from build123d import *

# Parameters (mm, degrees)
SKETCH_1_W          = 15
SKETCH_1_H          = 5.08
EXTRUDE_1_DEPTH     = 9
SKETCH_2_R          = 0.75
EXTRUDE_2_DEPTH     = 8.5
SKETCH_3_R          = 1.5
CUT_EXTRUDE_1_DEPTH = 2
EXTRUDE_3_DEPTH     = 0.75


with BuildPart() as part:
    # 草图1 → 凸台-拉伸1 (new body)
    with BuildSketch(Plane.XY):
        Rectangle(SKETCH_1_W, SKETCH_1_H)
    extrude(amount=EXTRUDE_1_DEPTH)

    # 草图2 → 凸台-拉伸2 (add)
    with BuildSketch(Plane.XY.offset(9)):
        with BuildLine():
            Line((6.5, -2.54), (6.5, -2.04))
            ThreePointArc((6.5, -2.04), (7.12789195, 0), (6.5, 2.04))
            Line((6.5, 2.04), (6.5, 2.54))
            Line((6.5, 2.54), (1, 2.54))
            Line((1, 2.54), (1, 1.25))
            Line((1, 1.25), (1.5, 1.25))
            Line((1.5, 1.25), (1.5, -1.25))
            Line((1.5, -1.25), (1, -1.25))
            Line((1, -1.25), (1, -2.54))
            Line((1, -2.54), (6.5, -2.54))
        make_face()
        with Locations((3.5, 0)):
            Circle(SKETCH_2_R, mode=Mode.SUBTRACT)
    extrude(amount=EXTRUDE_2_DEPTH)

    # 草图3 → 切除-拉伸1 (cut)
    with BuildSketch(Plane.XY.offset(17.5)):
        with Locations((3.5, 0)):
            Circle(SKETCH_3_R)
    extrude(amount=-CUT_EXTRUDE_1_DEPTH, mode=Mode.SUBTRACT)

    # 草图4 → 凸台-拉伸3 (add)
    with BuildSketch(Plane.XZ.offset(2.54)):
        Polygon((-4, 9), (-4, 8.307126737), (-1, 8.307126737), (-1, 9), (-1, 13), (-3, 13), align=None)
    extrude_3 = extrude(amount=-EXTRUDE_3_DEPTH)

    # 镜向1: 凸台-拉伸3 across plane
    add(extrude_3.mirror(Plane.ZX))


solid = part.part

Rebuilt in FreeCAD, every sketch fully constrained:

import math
import FreeCAD as App
import Part
import Sketcher

V = App.Vector
Q = App.Units.Quantity


def add_polygon(sketch, points):
    """Adds a closed chain of lines whose ends are joined by coincident constraints."""
    first, n = sketch.GeometryCount, len(points)
    for a, b in zip(points, points[1:] + points[:1]):
        sketch.addGeometry(Part.LineSegment(App.Vector(*a, 0), App.Vector(*b, 0)), False)
    for i in range(n):
        sketch.addConstraint(Sketcher.Constraint("Coincident", first + i, 2, first + (i + 1) % n, 1))

doc = App.newDocument("Part")
params = doc.addObject("Spreadsheet::Sheet", "Params")
for row, (alias, value) in enumerate([
    ("sketch1_width", "15 mm"),
    ("sketch1_height", "5.08 mm"),
    ("pad1_length", "9 mm"),
    ("sketch2_diameter", "1.5 mm"),
    ("sketch2_width", "5.5 mm"),
    ("sketch2_width2", "0.5 mm"),
    ("sketch2_height", "2.5 mm"),
    ("sketch2_height2", "1.29 mm"),
    ("pad2_length", "8.5 mm"),
    ("sketch3_diameter", "3 mm"),
    ("pocket1_length", "2 mm"),
    ("sketch4_width", "3 mm"),
    ("sketch4_width2", "2 mm"),
    ("pad3_length", "0.75 mm"),
], start=1):
    params.set(f"A{row}", alias)
    params.set(f"B{row}", "=" + value)
    params.setAlias(f"B{row}", alias)

body = doc.addObject("PartDesign::Body", "Body")

# Sketch on XY plane
sketch1 = body.newObject("Sketcher::SketchObject", "Sketch")
sketch1.AttachmentSupport = (doc.getObject("XY_Plane"), [""])
sketch1.MapMode = "FlatFace"
add_polygon(sketch1, [(-8, 3), (-8, -3), (8, -3), (8, 3)])  # lines 0-3
sketch1.addConstraint(Sketcher.Constraint("Vertical", 0))
sketch1.addConstraint(Sketcher.Constraint("Horizontal", 1))
sketch1.addConstraint(Sketcher.Constraint("Vertical", 2))
sketch1.addConstraint(Sketcher.Constraint("Horizontal", 3))
sketch1.addConstraint(Sketcher.Constraint("Symmetric", 0, 2, 2, 2, -1, 1))
sketch1.addConstraint(Sketcher.Constraint("DistanceX", 1, 1, 1, 2, Q("15 mm")))
sketch1.addConstraint(Sketcher.Constraint("DistanceY", 0, 2, 0, 1, Q("5.08 mm")))
sketch1.setExpression("Constraints[9]", "Params.sketch1_width")
sketch1.setExpression("Constraints[10]", "Params.sketch1_height")
pad1 = body.newObject("PartDesign::Pad", "Pad")
pad1.Profile = sketch1
pad1.setExpression("Length", "Params.pad1_length")

# Sketch on XY plane
sketch2 = body.newObject("Sketcher::SketchObject", "Sketch001")
sketch2.AttachmentSupport = (doc.getObject("XY_Plane"), [""])
sketch2.MapMode = "FlatFace"
sketch2.AttachmentOffset = App.Placement(V(0, 0, 9), App.Rotation())
sketch2.addGeometry(Part.LineSegment(V(6.5, -2.5, 0), V(6.5, -2, 0)), False)
sketch2.addGeometry(Part.ArcOfCircle(Part.Circle(V(3.5, 0, 0), V(0, 0, 1), 3.6), math.radians(-34), math.radians(34)), False)
sketch2.addGeometry(Part.LineSegment(V(6.5, 2, 0), V(6.5, 2.5, 0)), False)
sketch2.addGeometry(Part.LineSegment(V(6.5, 2.5, 0), V(1, 2.5, 0)), False)
sketch2.addGeometry(Part.LineSegment(V(1, 2.5, 0), V(1, 1.2, 0)), False)
sketch2.addGeometry(Part.LineSegment(V(1, 1.2, 0), V(1.5, 1.2, 0)), False)
sketch2.addGeometry(Part.LineSegment(V(1.5, 1.2, 0), V(1.5, -1.2, 0)), False)
sketch2.addGeometry(Part.LineSegment(V(1.5, -1.2, 0), V(1, -1.2, 0)), False)
sketch2.addGeometry(Part.LineSegment(V(1, -1.2, 0), V(1, -2.5, 0)), False)
sketch2.addGeometry(Part.LineSegment(V(1, -2.5, 0), V(6.5, -2.5, 0)), False)
sketch2.addGeometry(Part.Circle(V(3.5, 0, 0), V(0, 0, 1), 0.8), False)
sketch2.addConstraint(Sketcher.Constraint("Coincident", 0, 2, 1, 1))
sketch2.addConstraint(Sketcher.Constraint("Coincident", 1, 2, 2, 1))
sketch2.addConstraint(Sketcher.Constraint("Coincident", 2, 2, 3, 1))
sketch2.addConstraint(Sketcher.Constraint("Coincident", 3, 2, 4, 1))
sketch2.addConstraint(Sketcher.Constraint("Coincident", 4, 2, 5, 1))
sketch2.addConstraint(Sketcher.Constraint("Coincident", 5, 2, 6, 1))
sketch2.addConstraint(Sketcher.Constraint("Coincident", 6, 2, 7, 1))
sketch2.addConstraint(Sketcher.Constraint("Coincident", 7, 2, 8, 1))
sketch2.addConstraint(Sketcher.Constraint("Coincident", 8, 2, 9, 1))
sketch2.addConstraint(Sketcher.Constraint("Coincident", 9, 2, 0, 1))
sketch2.addConstraint(Sketcher.Constraint("Vertical", 0))
sketch2.addConstraint(Sketcher.Constraint("Vertical", 2))
sketch2.addConstraint(Sketcher.Constraint("Horizontal", 3))
sketch2.addConstraint(Sketcher.Constraint("Vertical", 4))
sketch2.addConstraint(Sketcher.Constraint("Horizontal", 5))
sketch2.addConstraint(Sketcher.Constraint("Vertical", 6))
sketch2.addConstraint(Sketcher.Constraint("Horizontal", 7))
sketch2.addConstraint(Sketcher.Constraint("Vertical", 8))
sketch2.addConstraint(Sketcher.Constraint("Horizontal", 9))
sketch2.addConstraint(Sketcher.Constraint("Coincident", 10, 3, 1, 3))
sketch2.addConstraint(Sketcher.Constraint("Symmetric", 0, 2, 1, 2, -1))
sketch2.addConstraint(Sketcher.Constraint("Symmetric", 4, 2, 7, 2, -1))
sketch2.addConstraint(Sketcher.Constraint("Equal", 7, 0))
sketch2.addConstraint(Sketcher.Constraint("Equal", 0, 2))
sketch2.addConstraint(Sketcher.Constraint("Diameter", 10, Q("1.5 mm")))
sketch2.addConstraint(Sketcher.Constraint("DistanceX", 3, 2, 3, 1, Q("5.5 mm")))
sketch2.addConstraint(Sketcher.Constraint("DistanceX", 5, 1, 5, 2, Q("0.5 mm")))
sketch2.addConstraint(Sketcher.Constraint("DistanceY", 6, 2, 6, 1, Q("2.5 mm")))
sketch2.addConstraint(Sketcher.Constraint("DistanceX", -1, 1, 3, 2, Q("1 mm")))
sketch2.addConstraint(Sketcher.Constraint("DistanceX", 1, 3, 0, 2, Q("3 mm")))
sketch2.addConstraint(Sketcher.Constraint("DistanceY", 4, 2, 4, 1, Q("1.29 mm")))
sketch2.setExpression("Constraints[24]", "Params.sketch2_diameter")
sketch2.setExpression("Constraints[25]", "Params.sketch2_width")
sketch2.setExpression("Constraints[26]", "Params.sketch2_width2")
sketch2.setExpression("Constraints[27]", "Params.sketch2_height")
sketch2.setExpression("Constraints[30]", "Params.sketch2_height2")
pad2 = body.newObject("PartDesign::Pad", "Pad001")
pad2.Profile = sketch2
pad2.setExpression("Length", "Params.pad2_length")

# Sketch on XY plane
sketch3 = body.newObject("Sketcher::SketchObject", "Sketch002")
sketch3.AttachmentSupport = (doc.getObject("XY_Plane"), [""])
sketch3.MapMode = "FlatFace"
sketch3.AttachmentOffset = App.Placement(V(0, 0, 17.5), App.Rotation())
sketch3.addGeometry(Part.Circle(V(3.5, 0, 0), V(0, 0, 1), 1.5), False)
sketch3.addConstraint(Sketcher.Constraint("PointOnObject", 0, 3, -1))
sketch3.addConstraint(Sketcher.Constraint("Diameter", 0, Q("3 mm")))
sketch3.addConstraint(Sketcher.Constraint("DistanceX", -1, 1, 0, 3, Q("3.5 mm")))
sketch3.setExpression("Constraints[1]", "Params.sketch3_diameter")
pocket1 = body.newObject("PartDesign::Pocket", "Pocket")
pocket1.Profile = sketch3
pocket1.setExpression("Length", "Params.pocket1_length")

# Sketch on XZ plane
sketch4 = body.newObject("Sketcher::SketchObject", "Sketch003")
sketch4.AttachmentSupport = (doc.getObject("XZ_Plane"), [""])
sketch4.MapMode = "FlatFace"
sketch4.AttachmentOffset = App.Placement(V(0, 0, 2.54), App.Rotation())
add_polygon(sketch4, [(-4, 9), (-4, 8.3), (-1, 8.3), (-1, 13), (-3, 13)])  # lines 0-4
sketch4.addConstraint(Sketcher.Constraint("Vertical", 0))
sketch4.addConstraint(Sketcher.Constraint("Horizontal", 1))
sketch4.addConstraint(Sketcher.Constraint("Vertical", 2))
sketch4.addConstraint(Sketcher.Constraint("Horizontal", 3))
sketch4.addConstraint(Sketcher.Constraint("DistanceX", 1, 1, 1, 2, Q("3 mm")))
sketch4.addConstraint(Sketcher.Constraint("DistanceX", 3, 2, 3, 1, Q("2 mm")))
sketch4.addConstraint(Sketcher.Constraint("DistanceX", 0, 2, -1, 1, Q("4 mm")))
sketch4.addConstraint(Sketcher.Constraint("DistanceY", -1, 1, 2, 2, Q("13 mm")))
sketch4.addConstraint(Sketcher.Constraint("DistanceY", -1, 1, 4, 2, Q("9 mm")))
sketch4.addConstraint(Sketcher.Constraint("DistanceY", 0, 2, 0, 1, Q("0.692873 mm")))
sketch4.setExpression("Constraints[9]", "Params.sketch4_width")
sketch4.setExpression("Constraints[10]", "Params.sketch4_width2")
pad3 = body.newObject("PartDesign::Pad", "Pad002")
pad3.Profile = sketch4
pad3.setExpression("Length", "Params.pad3_length")
pad3.Reversed = True
doc.recompute()

mirrored = body.newObject("PartDesign::Mirrored", "Mirrored")
mirrored.Originals = [pad3]
mirrored.MirrorPlane = (doc.getObject("XZ_Plane"), [""])
body.Tip = mirrored

doc.recompute()
